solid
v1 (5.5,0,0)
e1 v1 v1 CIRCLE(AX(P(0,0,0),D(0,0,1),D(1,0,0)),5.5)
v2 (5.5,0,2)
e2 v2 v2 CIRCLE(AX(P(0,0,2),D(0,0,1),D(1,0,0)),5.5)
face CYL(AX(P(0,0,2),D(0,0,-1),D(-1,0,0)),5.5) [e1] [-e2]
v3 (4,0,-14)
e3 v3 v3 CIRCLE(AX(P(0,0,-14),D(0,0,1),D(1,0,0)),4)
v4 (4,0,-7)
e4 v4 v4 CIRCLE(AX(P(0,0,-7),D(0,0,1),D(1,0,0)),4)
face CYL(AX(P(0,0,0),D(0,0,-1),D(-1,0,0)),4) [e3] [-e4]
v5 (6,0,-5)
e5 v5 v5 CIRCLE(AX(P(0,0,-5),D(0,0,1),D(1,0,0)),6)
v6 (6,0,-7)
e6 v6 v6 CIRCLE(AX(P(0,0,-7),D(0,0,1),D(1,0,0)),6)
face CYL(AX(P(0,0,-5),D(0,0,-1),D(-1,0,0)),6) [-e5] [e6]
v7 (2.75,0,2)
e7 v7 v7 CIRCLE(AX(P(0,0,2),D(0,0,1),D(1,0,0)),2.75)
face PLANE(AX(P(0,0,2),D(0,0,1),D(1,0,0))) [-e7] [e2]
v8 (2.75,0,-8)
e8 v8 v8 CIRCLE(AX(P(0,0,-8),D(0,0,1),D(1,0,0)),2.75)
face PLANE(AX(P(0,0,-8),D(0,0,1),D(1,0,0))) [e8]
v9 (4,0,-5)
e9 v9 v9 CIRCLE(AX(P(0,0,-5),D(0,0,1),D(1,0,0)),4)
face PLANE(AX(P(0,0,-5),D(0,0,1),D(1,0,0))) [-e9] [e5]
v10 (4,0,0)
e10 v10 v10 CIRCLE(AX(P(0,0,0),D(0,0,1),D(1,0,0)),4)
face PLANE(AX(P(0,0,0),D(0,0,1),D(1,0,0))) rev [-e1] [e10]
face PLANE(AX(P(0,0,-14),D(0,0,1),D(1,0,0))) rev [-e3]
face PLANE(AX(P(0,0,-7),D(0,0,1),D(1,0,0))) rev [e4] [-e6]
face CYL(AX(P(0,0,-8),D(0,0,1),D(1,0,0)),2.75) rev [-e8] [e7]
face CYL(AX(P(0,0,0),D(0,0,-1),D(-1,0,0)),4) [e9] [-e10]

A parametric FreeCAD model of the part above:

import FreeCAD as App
import Part
import Sketcher

V = App.Vector
Q = App.Units.Quantity

doc = App.newDocument("Part")
body = doc.addObject("PartDesign::Body", "Body")

# Sketch on XY plane
sketch1 = body.newObject("Sketcher::SketchObject", "Sketch")
sketch1.AttachmentSupport = (doc.getObject("XY_Plane"), [""])
sketch1.MapMode = "FlatFace"
sketch1.addGeometry(Part.Circle(V(0, 0, 0), V(0, 0, 1), 6), False)
sketch1.addConstraint(Sketcher.Constraint("Coincident", 0, 3, -1, 1))
sketch1.addConstraint(Sketcher.Constraint("Diameter", 0, Q("11 mm")))
pad1 = body.newObject("PartDesign::Pad", "Pad")
pad1.Profile = sketch1
pad1.Length = 2

# Sketch on XY plane
sketch2 = body.newObject("Sketcher::SketchObject", "Sketch001")
sketch2.AttachmentSupport = (doc.getObject("XY_Plane"), [""])
sketch2.MapMode = "FlatFace"
sketch2.AttachmentOffset = App.Placement(V(0, 0, -14), App.Rotation())
sketch2.addGeometry(Part.Circle(V(0, 0, 0), V(0, 0, 1), 4), False)
sketch2.addConstraint(Sketcher.Constraint("Coincident", 0, 3, -1, 1))
sketch2.addConstraint(Sketcher.Constraint("Diameter", 0, Q("8 mm")))
pad2 = body.newObject("PartDesign::Pad", "Pad001")
pad2.Profile = sketch2
pad2.Length = 14

# Sketch on XY plane
sketch3 = body.newObject("Sketcher::SketchObject", "Sketch002")
sketch3.AttachmentSupport = (doc.getObject("XY_Plane"), [""])
sketch3.MapMode = "FlatFace"
sketch3.AttachmentOffset = App.Placement(V(0, 0, -7), App.Rotation())
sketch3.addGeometry(Part.Circle(V(0, 0, 0), V(0, 0, 1), 6), False)
sketch3.addConstraint(Sketcher.Constraint("Coincident", 0, 3, -1, 1))
sketch3.addConstraint(Sketcher.Constraint("Diameter", 0, Q("12 mm")))
pad3 = body.newObject("PartDesign::Pad", "Pad002")
pad3.Profile = sketch3
pad3.Length = 2

# Sketch on XY plane
sketch4 = body.newObject("Sketcher::SketchObject", "Sketch003")
sketch4.AttachmentSupport = (doc.getObject("XY_Plane"), [""])
sketch4.MapMode = "FlatFace"
sketch4.AttachmentOffset = App.Placement(V(0, 0, 2), App.Rotation())
sketch4.addGeometry(Part.Circle(V(0, 0, 0), V(0, 0, 1), 2.8), False)
sketch4.addConstraint(Sketcher.Constraint("Coincident", 0, 3, -1, 1))
sketch4.addConstraint(Sketcher.Constraint("Diameter", 0, Q("5.5 mm")))
pocket1 = body.newObject("PartDesign::Pocket", "Pocket")
pocket1.Profile = sketch4
pocket1.Length = 10

doc.recompute()
